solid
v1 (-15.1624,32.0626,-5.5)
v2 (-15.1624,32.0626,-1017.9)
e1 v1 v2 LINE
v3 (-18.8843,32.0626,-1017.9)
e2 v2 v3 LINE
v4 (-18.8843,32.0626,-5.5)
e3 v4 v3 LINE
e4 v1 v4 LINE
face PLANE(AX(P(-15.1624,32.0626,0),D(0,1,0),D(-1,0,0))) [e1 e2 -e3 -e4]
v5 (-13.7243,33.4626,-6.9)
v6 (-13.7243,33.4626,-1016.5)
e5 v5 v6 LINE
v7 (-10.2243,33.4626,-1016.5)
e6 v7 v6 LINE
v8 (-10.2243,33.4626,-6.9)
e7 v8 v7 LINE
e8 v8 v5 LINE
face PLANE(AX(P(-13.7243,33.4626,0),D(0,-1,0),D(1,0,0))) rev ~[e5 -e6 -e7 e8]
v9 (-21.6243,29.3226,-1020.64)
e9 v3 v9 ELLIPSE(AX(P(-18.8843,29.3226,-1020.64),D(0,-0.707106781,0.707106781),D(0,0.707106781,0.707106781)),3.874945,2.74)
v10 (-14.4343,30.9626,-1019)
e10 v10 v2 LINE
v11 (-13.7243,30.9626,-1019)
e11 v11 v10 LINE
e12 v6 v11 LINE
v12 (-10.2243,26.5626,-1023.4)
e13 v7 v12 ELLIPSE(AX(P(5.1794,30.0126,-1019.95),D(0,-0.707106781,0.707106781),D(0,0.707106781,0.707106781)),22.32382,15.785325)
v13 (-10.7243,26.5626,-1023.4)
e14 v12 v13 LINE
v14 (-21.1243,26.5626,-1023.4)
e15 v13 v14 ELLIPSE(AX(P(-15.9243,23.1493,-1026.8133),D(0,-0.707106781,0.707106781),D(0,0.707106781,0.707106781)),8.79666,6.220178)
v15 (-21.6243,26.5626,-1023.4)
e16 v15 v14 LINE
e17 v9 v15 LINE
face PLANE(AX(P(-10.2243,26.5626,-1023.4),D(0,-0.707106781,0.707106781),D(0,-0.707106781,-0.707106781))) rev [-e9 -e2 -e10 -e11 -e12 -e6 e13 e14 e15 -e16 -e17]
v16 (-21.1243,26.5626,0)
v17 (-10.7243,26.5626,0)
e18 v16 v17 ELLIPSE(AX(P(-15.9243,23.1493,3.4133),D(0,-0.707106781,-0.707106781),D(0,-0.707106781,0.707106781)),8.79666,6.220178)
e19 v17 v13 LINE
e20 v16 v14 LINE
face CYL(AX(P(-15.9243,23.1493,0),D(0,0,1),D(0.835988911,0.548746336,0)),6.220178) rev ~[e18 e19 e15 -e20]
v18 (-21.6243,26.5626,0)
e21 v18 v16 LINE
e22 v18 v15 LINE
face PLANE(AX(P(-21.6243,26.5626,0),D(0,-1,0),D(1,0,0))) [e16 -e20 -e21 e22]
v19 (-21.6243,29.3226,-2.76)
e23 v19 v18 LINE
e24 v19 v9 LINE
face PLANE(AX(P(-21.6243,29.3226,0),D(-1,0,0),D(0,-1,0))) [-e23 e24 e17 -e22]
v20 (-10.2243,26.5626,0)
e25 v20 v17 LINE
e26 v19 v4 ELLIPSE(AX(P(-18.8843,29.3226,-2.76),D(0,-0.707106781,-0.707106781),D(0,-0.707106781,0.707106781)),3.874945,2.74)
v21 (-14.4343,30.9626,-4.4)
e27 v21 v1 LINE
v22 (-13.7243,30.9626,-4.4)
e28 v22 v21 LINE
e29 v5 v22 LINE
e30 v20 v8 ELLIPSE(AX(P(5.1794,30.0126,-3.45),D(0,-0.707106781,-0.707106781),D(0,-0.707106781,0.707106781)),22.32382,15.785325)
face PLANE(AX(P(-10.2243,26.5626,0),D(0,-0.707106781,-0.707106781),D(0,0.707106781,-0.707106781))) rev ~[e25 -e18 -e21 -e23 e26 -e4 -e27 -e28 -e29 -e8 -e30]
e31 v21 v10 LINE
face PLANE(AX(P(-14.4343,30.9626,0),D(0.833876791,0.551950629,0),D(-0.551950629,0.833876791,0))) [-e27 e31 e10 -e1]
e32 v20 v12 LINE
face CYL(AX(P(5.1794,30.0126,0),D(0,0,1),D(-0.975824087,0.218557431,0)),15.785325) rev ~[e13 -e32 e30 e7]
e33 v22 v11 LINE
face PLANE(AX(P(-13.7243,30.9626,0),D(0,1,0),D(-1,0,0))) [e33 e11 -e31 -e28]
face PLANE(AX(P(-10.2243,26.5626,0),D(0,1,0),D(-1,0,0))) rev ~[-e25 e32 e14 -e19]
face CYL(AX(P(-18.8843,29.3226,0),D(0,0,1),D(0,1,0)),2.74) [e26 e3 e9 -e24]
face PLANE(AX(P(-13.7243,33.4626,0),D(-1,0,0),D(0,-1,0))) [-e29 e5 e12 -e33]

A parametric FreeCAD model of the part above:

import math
import FreeCAD as App
import Part
import Sketcher
from FreeCAD import Vector
Q = App.Units.Quantity


def add_polygon(sketch, points):
    """Adds a closed chain of lines whose ends are joined by coincident constraints."""
    first, n = sketch.GeometryCount, len(points)
    for a, b in zip(points, points[1:] + points[:1]):
        sketch.addGeometry(Part.LineSegment(App.Vector(*a, 0), App.Vector(*b, 0)), False)
    for i in range(n):
        sketch.addConstraint(Sketcher.Constraint("Coincident", first + i, 2, first + (i + 1) % n, 1))

doc = App.newDocument("Part")
params = doc.addObject("Spreadsheet::Sheet", "Params")
for row, (alias, value) in enumerate([
    ("sketch1_radius", "2.74 mm"),
    ("sketch1_width", "0.5 mm"),
    ("sketch1_width2", "3.5 mm"),
    ("sketch1_height", "2.5 mm"),
    ("sketch1_width3", "0.71 mm"),
    ("pad1_length", "1023.4 mm"),
    ("sketch2_width", "6.9 mm"),
], start=1):
    params.set(f"A{row}", alias)
    params.set(f"B{row}", "=" + value)
    params.setAlias(f"B{row}", alias)

body = doc.addObject("PartDesign::Body", "Body")

# Sketch on XY plane
sketch1 = body.newObject("Sketcher::SketchObject", "Sketch")
sketch1.AttachmentSupport = (doc.getObject("XY_Plane"), [""])
sketch1.MapMode = "FlatFace"
sketch1.addGeometry([
    Part.LineSegment(Vector(-14.4, 31, 0), Vector(-15.2, 32.1, 0)),  # 0
    Part.LineSegment(Vector(-15.2, 32.1, 0), Vector(-18.9, 32.1, 0)),  # 1
    Part.ArcOfCircle(Part.Circle(Vector(-18.9, 29.3, 0), Vector(0, 0, 1), 2.7), math.radians(90), math.radians(180)),  # 2
    Part.LineSegment(Vector(-21.6, 29.3, 0), Vector(-21.6, 26.6, 0)),  # 3
    Part.LineSegment(Vector(-21.6, 26.6, 0), Vector(-21.1, 26.6, 0)),  # 4
    Part.ArcOfCircle(Part.Circle(Vector(-15.9, 23.1, 0), Vector(0, 0, 1), 6.2), math.radians(33), math.radians(147)),  # 5
    Part.LineSegment(Vector(-10.7, 26.6, 0), Vector(-10.2, 26.6, 0)),  # 6
    Part.ArcOfCircle(Part.Circle(Vector(5.2, 30, 0), Vector(0, 0, 1), 15.8), math.radians(167), math.radians(193)),  # 7
    Part.LineSegment(Vector(-10.2, 33.5, 0), Vector(-13.7, 33.5, 0)),  # 8
    Part.LineSegment(Vector(-13.7, 33.5, 0), Vector(-13.7, 31, 0)),  # 9
    Part.LineSegment(Vector(-13.7, 31, 0), Vector(-14.4, 31, 0)),  # 10
], False)
sketch1.addConstraint([
    Sketcher.Constraint("Coincident", 0, 2, 1, 1),
    Sketcher.Constraint("Tangent", 1, 2, 2, 1),
    Sketcher.Constraint("Tangent", 2, 2, 3, 1),
    Sketcher.Constraint("Coincident", 3, 2, 4, 1),
    Sketcher.Constraint("Coincident", 4, 2, 5, 2),
    Sketcher.Constraint("Coincident", 5, 1, 6, 1),
    Sketcher.Constraint("Coincident", 6, 2, 7, 2),
    Sketcher.Constraint("Coincident", 7, 1, 8, 1),
    Sketcher.Constraint("Coincident", 8, 2, 9, 1),
    Sketcher.Constraint("Coincident", 9, 2, 10, 1),
    Sketcher.Constraint("Coincident", 10, 2, 0, 1),
    Sketcher.Constraint("Horizontal", 1),
    Sketcher.Constraint("Vertical", 3),
    Sketcher.Constraint("Horizontal", 4),
    Sketcher.Constraint("Horizontal", 6),
    Sketcher.Constraint("Horizontal", 8),
    Sketcher.Constraint("Vertical", 9),
    Sketcher.Constraint("Horizontal", 10),
    Sketcher.Constraint("Horizontal", 4, 2, 5, 1),
    Sketcher.Constraint("Vertical", 6, 2, 7, 1),
    Sketcher.Constraint("Equal", 4, 6),
    Sketcher.Constraint("Radius", 2, 2.74),
    Sketcher.Constraint("DistanceX", 4, 1, 4, 2, 0.5),
    Sketcher.Constraint("DistanceX", 8, 2, 8, 1, 3.5),
    Sketcher.Constraint("DistanceY", 9, 2, 9, 1, 2.5),
    Sketcher.Constraint("DistanceX", 10, 2, 10, 1, 0.71),
    Sketcher.Constraint("DistanceY", 3, 2, 3, 1, 2.76),
    Sketcher.Constraint("Angle", 0, Q("123.501 deg")),
    Sketcher.Constraint("Radius", 5, 6.2202),
    Sketcher.Constraint("Radius", 7, 15.7853),
    Sketcher.Constraint("DistanceX", 2, 2, 5, 3, 5.7),
    Sketcher.Constraint("DistanceY", 0, 2, 7, 1, 1.4),
    Sketcher.Constraint("DistanceX", 2, 3, -1, 1, 18.8843),
    Sketcher.Constraint("DistanceY", -1, 1, 2, 3, 29.3226),
])
sketch1.setExpression("Constraints[21]", "Params.sketch1_radius")
sketch1.setExpression("Constraints[22]", "Params.sketch1_width")
sketch1.setExpression("Constraints[23]", "Params.sketch1_width2")
sketch1.setExpression("Constraints[24]", "Params.sketch1_height")
sketch1.setExpression("Constraints[25]", "Params.sketch1_width3")
pad1 = body.newObject("PartDesign::Pad", "Pad")
pad1.Profile = sketch1
pad1.setExpression("Length", "Params.pad1_length")
pad1.Reversed = True

# Sketch on YZ plane
sketch2 = body.newObject("Sketcher::SketchObject", "Sketch001")
sketch2.AttachmentSupport = (doc.getObject("YZ_Plane"), [""])
sketch2.MapMode = "FlatFace"
sketch2.AttachmentOffset = App.Placement(Vector(0, 0, -10.2243), App.Rotation())
add_polygon(sketch2, [(27, 0), (33, 0), (33, -7)])  # lines 0-2
sketch2.addConstraint([
    Sketcher.Constraint("Horizontal", 0),
    Sketcher.Constraint("Vertical", 1),
    Sketcher.Constraint("PointOnObject", 0, 2, -1),
    Sketcher.Constraint("Equal", 0, 1),
    Sketcher.Constraint("DistanceX", 0, 1, 0, 2, 6.9),
    Sketcher.Constraint("DistanceX", -1, 1, 0, 2, 33.4626),
])
sketch2.setExpression("Constraints[7]", "Params.sketch2_width")
pocket1 = body.newObject("PartDesign::Pocket", "Pocket")
pocket1.Profile = sketch2
pocket1.Type = "ThroughAll"
doc.recompute()

datumplane = body.newObject("PartDesign::Plane", "DatumPlane")
datumplane.AttachmentSupport = (doc.getObject("XY_Plane"), [""])
datumplane.MapMode = "FlatFace"
datumplane.AttachmentOffset = App.Placement(Vector(0, 0, -511.7), App.Rotation())
mirrored = body.newObject("PartDesign::Mirrored", "Mirrored")
mirrored.Originals = [pocket1]
mirrored.MirrorPlane = (datumplane, [""])
body.Tip = mirrored

doc.recompute()
